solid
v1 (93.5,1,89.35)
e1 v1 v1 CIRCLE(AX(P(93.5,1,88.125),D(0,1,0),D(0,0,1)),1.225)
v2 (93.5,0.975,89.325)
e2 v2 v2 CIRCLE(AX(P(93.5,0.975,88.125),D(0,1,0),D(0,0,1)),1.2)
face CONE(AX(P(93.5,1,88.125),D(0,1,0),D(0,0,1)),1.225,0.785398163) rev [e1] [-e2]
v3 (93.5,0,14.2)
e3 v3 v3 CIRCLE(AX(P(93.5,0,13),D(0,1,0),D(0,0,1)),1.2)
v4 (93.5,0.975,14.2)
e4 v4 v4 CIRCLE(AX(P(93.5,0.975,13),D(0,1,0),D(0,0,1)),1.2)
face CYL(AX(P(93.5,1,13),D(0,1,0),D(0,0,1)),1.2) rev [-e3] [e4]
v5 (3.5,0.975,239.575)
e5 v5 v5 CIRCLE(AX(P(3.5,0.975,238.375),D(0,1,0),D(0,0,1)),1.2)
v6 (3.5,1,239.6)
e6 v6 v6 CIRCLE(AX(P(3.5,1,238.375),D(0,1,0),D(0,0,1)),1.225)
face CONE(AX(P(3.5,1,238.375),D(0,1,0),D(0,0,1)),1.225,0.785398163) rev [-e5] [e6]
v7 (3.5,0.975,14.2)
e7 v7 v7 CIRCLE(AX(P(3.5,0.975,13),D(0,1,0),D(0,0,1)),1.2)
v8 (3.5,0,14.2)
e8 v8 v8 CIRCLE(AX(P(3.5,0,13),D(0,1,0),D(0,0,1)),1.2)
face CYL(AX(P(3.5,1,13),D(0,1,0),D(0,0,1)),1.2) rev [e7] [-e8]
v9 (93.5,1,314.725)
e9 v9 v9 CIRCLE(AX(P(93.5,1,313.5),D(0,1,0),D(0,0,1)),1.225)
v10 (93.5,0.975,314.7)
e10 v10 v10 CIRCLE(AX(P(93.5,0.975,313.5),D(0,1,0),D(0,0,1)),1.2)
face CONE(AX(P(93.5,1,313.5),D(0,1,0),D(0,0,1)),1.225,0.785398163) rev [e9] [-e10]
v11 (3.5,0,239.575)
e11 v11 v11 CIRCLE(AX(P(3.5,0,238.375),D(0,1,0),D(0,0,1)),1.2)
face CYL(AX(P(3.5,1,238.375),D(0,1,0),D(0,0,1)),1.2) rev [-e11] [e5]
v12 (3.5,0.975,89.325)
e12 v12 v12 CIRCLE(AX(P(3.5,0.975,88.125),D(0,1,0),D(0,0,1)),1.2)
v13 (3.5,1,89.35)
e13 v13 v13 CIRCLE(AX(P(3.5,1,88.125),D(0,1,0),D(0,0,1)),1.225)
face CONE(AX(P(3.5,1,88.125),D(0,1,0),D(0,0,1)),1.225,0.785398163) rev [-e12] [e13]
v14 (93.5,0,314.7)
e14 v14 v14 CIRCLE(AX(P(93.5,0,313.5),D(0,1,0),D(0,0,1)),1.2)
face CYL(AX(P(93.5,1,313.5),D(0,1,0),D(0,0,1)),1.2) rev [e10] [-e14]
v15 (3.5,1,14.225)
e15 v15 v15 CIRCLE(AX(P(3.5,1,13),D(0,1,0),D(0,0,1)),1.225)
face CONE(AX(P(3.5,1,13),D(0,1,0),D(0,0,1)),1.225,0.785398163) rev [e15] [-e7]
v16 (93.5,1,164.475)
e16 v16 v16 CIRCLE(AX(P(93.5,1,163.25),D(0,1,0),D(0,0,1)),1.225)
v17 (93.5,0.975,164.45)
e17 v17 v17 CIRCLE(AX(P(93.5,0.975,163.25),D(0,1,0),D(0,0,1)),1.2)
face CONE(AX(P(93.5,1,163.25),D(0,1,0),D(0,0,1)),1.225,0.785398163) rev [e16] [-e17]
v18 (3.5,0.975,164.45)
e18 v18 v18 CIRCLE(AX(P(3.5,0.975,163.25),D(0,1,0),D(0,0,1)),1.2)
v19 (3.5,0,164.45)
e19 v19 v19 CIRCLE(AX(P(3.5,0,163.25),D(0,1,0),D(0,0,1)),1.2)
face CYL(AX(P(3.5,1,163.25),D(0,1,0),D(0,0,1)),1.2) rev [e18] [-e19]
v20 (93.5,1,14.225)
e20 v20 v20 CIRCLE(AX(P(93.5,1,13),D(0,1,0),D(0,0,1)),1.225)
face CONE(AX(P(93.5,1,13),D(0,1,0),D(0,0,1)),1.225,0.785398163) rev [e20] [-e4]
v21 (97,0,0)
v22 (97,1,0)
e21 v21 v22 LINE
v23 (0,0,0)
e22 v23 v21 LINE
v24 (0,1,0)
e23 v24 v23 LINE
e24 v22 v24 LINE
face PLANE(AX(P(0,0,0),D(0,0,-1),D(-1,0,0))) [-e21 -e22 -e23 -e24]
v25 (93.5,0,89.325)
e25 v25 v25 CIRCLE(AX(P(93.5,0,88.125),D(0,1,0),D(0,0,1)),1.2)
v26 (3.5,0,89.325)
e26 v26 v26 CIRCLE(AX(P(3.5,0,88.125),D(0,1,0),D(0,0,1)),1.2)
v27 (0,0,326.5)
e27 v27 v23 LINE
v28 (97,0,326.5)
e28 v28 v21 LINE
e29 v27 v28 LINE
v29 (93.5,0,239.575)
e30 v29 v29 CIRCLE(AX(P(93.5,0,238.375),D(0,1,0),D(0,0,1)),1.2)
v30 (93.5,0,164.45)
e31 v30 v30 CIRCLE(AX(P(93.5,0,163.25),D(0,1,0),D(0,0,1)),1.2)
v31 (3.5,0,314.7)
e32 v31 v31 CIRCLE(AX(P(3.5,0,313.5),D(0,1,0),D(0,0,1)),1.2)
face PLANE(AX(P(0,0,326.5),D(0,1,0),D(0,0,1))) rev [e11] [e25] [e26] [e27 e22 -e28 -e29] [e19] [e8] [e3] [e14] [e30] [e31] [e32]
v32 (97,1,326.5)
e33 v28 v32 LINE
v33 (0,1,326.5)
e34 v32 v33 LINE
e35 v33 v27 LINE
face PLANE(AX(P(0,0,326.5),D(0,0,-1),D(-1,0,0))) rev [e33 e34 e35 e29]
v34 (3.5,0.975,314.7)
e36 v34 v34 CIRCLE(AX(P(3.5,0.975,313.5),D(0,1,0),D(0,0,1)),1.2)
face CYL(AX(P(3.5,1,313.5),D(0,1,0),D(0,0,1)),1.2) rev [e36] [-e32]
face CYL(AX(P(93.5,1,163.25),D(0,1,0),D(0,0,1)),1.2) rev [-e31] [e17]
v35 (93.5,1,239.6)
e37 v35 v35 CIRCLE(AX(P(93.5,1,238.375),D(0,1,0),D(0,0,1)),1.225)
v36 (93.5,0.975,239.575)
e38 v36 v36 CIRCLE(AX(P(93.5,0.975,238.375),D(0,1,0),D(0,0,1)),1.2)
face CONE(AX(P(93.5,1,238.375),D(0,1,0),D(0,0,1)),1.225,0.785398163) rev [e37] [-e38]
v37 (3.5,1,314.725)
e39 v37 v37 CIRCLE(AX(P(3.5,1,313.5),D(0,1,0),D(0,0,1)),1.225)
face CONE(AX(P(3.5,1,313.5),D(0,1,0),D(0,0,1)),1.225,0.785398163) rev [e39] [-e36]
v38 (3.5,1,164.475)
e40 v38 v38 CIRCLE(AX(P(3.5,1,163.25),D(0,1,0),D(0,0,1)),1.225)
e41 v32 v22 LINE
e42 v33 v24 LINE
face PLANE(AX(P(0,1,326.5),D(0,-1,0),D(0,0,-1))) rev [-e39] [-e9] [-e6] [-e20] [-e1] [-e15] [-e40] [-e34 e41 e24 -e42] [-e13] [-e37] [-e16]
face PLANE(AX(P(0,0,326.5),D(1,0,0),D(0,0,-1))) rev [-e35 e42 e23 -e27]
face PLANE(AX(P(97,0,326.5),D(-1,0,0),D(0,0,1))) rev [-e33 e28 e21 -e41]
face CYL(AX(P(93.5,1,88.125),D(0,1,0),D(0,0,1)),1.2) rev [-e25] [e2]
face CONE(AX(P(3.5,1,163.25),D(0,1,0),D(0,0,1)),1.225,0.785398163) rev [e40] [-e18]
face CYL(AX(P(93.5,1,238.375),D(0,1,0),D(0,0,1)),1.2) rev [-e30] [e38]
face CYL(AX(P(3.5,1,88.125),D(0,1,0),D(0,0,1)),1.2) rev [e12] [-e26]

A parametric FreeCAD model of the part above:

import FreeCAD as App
import Part
import Sketcher

V = App.Vector
Q = App.Units.Quantity

doc = App.newDocument("Part")
body = doc.addObject("PartDesign::Body", "Body")

# Sketch on XY plane
sketch1 = body.newObject("Sketcher::SketchObject", "Sketch")
sketch1.AttachmentSupport = (doc.getObject("XY_Plane"), [""])
sketch1.MapMode = "FlatFace"
sketch1.addGeometry(Part.LineSegment(V(0, 1, 0), V(0, 0, 0)), False)
sketch1.addGeometry(Part.LineSegment(V(0, 0, 0), V(97, 0, 0)), False)
sketch1.addGeometry(Part.LineSegment(V(97, 0, 0), V(97, 1, 0)), False)
sketch1.addGeometry(Part.LineSegment(V(97, 1, 0), V(0, 1, 0)), False)
sketch1.addConstraint(Sketcher.Constraint("Coincident", 0, 2, 1, 1))
sketch1.addConstraint(Sketcher.Constraint("Coincident", 1, 2, 2, 1))
sketch1.addConstraint(Sketcher.Constraint("Coincident", 2, 2, 3, 1))
sketch1.addConstraint(Sketcher.Constraint("Coincident", 3, 2, 0, 1))
sketch1.addConstraint(Sketcher.Constraint("Vertical", 0))
sketch1.addConstraint(Sketcher.Constraint("Horizontal", 1))
sketch1.addConstraint(Sketcher.Constraint("Vertical", 2))
sketch1.addConstraint(Sketcher.Constraint("Horizontal", 3))
sketch1.addConstraint(Sketcher.Constraint("Coincident", 0, 2, -1, 1))
sketch1.addConstraint(Sketcher.Constraint("DistanceX", 1, 1, 1, 2, 97.0))
sketch1.addConstraint(Sketcher.Constraint("DistanceY", 0, 2, 0, 1, 1.0))
pad1 = body.newObject("PartDesign::Pad", "Pad")
pad1.Profile = sketch1
pad1.Length = 326.5

# Sketch on YZ plane
sketch2 = body.newObject("Sketcher::SketchObject", "Sketch001")
sketch2.AttachmentSupport = (doc.getObject("YZ_Plane"), [""])
sketch2.MapMode = "FlatFace"
sketch2.AttachmentOffset = App.Placement(V(0, 0, 3.5), App.Rotation())
sketch2.addGeometry(Part.LineSegment(V(0, 313.5, 0), V(1, 313.5, 0)), False)
sketch2.addGeometry(Part.LineSegment(V(1, 313.5, 0), V(1, 314.725, 0)), False)
sketch2.addGeometry(Part.LineSegment(V(1, 314.725, 0), V(0.975, 314.7, 0)), False)
sketch2.addGeometry(Part.LineSegment(V(0.975, 314.7, 0), V(0, 314.7, 0)), False)
sketch2.addGeometry(Part.LineSegment(V(0, 314.7, 0), V(0, 313.5, 0)), False)
sketch2.addGeometry(Part.LineSegment(V(1, 313.5, 0), V(0, 313.5, 0)), True)  # axis
sketch2.addConstraint(Sketcher.Constraint("Coincident", 0, 2, 1, 1))
sketch2.addConstraint(Sketcher.Constraint("Coincident", 1, 2, 2, 1))
sketch2.addConstraint(Sketcher.Constraint("Coincident", 2, 2, 3, 1))
sketch2.addConstraint(Sketcher.Constraint("Coincident", 3, 2, 4, 1))
sketch2.addConstraint(Sketcher.Constraint("Coincident", 4, 2, 0, 1))
sketch2.addConstraint(Sketcher.Constraint("Horizontal", 0))
sketch2.addConstraint(Sketcher.Constraint("Vertical", 1))
sketch2.addConstraint(Sketcher.Constraint("Horizontal", 3))
sketch2.addConstraint(Sketcher.Constraint("Vertical", 4))
sketch2.addConstraint(Sketcher.Constraint("Horizontal", 5))
sketch2.addConstraint(Sketcher.Constraint("Coincident", 5, 1, 0, 2))
sketch2.addConstraint(Sketcher.Constraint("PointOnObject", 3, 2, -2))
sketch2.addConstraint(Sketcher.Constraint("PointOnObject", 5, 2, -2))
sketch2.addConstraint(Sketcher.Constraint("DistanceX", 0, 1, 0, 2, 1.0))
sketch2.addConstraint(Sketcher.Constraint("Angle", 2, Q("-135 deg")))
sketch2.addConstraint(Sketcher.Constraint("DistanceY", 4, 2, 4, 1, 1.2))
sketch2.addConstraint(Sketcher.Constraint("DistanceY", -1, 1, 0, 2, 313.5))
sketch2.addConstraint(Sketcher.Constraint("DistanceX", 3, 2, 3, 1, 0.975))
groove = body.newObject("PartDesign::Groove", "Groove")
groove.Profile = sketch2
groove.ReferenceAxis = (sketch2, ["Axis0"])
groove.Angle = 360
doc.recompute()

linearpattern = body.newObject("PartDesign::LinearPattern", "LinearPattern")
linearpattern.Originals = [groove]
linearpattern.Direction = (doc.getObject("X_Axis"), [""])
linearpattern.Mode = "offset"
linearpattern.Offset = 90
linearpattern.Occurrences = 2
body.Tip = linearpattern
doc.recompute()

linearpattern2 = body.newObject("PartDesign::LinearPattern", "LinearPattern001")
linearpattern2.Originals = [groove]
linearpattern2.Direction = (doc.getObject("Z_Axis"), [""])
linearpattern2.Mode = "offset"
linearpattern2.Offset = 75.125
linearpattern2.Occurrences = 2
linearpattern2.Reversed = True
body.Tip = linearpattern2
doc.recompute()

datumline = body.newObject("PartDesign::Line", "DatumLine")
datumline.Placement = App.Placement(V(0, 0, 0), App.Rotation(V(0, 0, 1), V(0.767696639, 0, -0.640813444)))
linearpattern3 = body.newObject("PartDesign::LinearPattern", "LinearPattern002")
linearpattern3.Originals = [groove]
linearpattern3.Direction = (datumline, [""])
linearpattern3.Mode = "offset"
linearpattern3.Offset = 117.233808
linearpattern3.Occurrences = 2
body.Tip = linearpattern3
doc.recompute()

linearpattern4 = body.newObject("PartDesign::LinearPattern", "LinearPattern003")
linearpattern4.Originals = [groove]
linearpattern4.Direction = (doc.getObject("Z_Axis"), [""])
linearpattern4.Mode = "offset"
linearpattern4.Offset = 150.25
linearpattern4.Occurrences = 2
linearpattern4.Reversed = True
body.Tip = linearpattern4
doc.recompute()

datumline2 = body.newObject("PartDesign::Line", "DatumLine001")
datumline2.Placement = App.Placement(V(0, 0, 0), App.Rotation(V(0, 0, 1), V(0.513865879, 0, -0.857870537)))
linearpattern5 = body.newObject("PartDesign::LinearPattern", "LinearPattern004")
linearpattern5.Originals = [groove]
linearpattern5.Direction = (datumline2, [""])
linearpattern5.Mode = "offset"
linearpattern5.Offset = 175.142977
linearpattern5.Occurrences = 2
body.Tip = linearpattern5
doc.recompute()

linearpattern6 = body.newObject("PartDesign::LinearPattern", "LinearPattern005")
linearpattern6.Originals = [groove]
linearpattern6.Direction = (doc.getObject("Z_Axis"), [""])
linearpattern6.Mode = "offset"
linearpattern6.Offset = 225.375
linearpattern6.Occurrences = 2
linearpattern6.Reversed = True
body.Tip = linearpattern6
doc.recompute()

datumline3 = body.newObject("PartDesign::Line", "DatumLine002")
datumline3.Placement = App.Placement(V(0, 0, 0), App.Rotation(V(0, 0, 1), V(0.370857774, 0, -0.928689675)))
linearpattern7 = body.newObject("PartDesign::LinearPattern", "LinearPattern006")
linearpattern7.Originals = [groove]
linearpattern7.Direction = (datumline3, [""])
linearpattern7.Mode = "offset"
linearpattern7.Offset = 242.680635
linearpattern7.Occurrences = 2
body.Tip = linearpattern7
doc.recompute()

linearpattern8 = body.newObject("PartDesign::LinearPattern", "LinearPattern007")
linearpattern8.Originals = [groove]
linearpattern8.Direction = (doc.getObject("Z_Axis"), [""])
linearpattern8.Mode = "offset"
linearpattern8.Offset = 300.5
linearpattern8.Occurrences = 2
linearpattern8.Reversed = True
body.Tip = linearpattern8
doc.recompute()

datumline4 = body.newObject("PartDesign::Line", "DatumLine003")
datumline4.Placement = App.Placement(V(0, 0, 0), App.Rotation(V(0, 0, 1), V(0.286909156, 0, -0.957957794)))
linearpattern9 = body.newObject("PartDesign::LinearPattern", "LinearPattern008")
linearpattern9.Originals = [groove]
linearpattern9.Direction = (datumline4, [""])
linearpattern9.Mode = "offset"
linearpattern9.Offset = 313.688141
linearpattern9.Occurrences = 2
body.Tip = linearpattern9

doc.recompute()
